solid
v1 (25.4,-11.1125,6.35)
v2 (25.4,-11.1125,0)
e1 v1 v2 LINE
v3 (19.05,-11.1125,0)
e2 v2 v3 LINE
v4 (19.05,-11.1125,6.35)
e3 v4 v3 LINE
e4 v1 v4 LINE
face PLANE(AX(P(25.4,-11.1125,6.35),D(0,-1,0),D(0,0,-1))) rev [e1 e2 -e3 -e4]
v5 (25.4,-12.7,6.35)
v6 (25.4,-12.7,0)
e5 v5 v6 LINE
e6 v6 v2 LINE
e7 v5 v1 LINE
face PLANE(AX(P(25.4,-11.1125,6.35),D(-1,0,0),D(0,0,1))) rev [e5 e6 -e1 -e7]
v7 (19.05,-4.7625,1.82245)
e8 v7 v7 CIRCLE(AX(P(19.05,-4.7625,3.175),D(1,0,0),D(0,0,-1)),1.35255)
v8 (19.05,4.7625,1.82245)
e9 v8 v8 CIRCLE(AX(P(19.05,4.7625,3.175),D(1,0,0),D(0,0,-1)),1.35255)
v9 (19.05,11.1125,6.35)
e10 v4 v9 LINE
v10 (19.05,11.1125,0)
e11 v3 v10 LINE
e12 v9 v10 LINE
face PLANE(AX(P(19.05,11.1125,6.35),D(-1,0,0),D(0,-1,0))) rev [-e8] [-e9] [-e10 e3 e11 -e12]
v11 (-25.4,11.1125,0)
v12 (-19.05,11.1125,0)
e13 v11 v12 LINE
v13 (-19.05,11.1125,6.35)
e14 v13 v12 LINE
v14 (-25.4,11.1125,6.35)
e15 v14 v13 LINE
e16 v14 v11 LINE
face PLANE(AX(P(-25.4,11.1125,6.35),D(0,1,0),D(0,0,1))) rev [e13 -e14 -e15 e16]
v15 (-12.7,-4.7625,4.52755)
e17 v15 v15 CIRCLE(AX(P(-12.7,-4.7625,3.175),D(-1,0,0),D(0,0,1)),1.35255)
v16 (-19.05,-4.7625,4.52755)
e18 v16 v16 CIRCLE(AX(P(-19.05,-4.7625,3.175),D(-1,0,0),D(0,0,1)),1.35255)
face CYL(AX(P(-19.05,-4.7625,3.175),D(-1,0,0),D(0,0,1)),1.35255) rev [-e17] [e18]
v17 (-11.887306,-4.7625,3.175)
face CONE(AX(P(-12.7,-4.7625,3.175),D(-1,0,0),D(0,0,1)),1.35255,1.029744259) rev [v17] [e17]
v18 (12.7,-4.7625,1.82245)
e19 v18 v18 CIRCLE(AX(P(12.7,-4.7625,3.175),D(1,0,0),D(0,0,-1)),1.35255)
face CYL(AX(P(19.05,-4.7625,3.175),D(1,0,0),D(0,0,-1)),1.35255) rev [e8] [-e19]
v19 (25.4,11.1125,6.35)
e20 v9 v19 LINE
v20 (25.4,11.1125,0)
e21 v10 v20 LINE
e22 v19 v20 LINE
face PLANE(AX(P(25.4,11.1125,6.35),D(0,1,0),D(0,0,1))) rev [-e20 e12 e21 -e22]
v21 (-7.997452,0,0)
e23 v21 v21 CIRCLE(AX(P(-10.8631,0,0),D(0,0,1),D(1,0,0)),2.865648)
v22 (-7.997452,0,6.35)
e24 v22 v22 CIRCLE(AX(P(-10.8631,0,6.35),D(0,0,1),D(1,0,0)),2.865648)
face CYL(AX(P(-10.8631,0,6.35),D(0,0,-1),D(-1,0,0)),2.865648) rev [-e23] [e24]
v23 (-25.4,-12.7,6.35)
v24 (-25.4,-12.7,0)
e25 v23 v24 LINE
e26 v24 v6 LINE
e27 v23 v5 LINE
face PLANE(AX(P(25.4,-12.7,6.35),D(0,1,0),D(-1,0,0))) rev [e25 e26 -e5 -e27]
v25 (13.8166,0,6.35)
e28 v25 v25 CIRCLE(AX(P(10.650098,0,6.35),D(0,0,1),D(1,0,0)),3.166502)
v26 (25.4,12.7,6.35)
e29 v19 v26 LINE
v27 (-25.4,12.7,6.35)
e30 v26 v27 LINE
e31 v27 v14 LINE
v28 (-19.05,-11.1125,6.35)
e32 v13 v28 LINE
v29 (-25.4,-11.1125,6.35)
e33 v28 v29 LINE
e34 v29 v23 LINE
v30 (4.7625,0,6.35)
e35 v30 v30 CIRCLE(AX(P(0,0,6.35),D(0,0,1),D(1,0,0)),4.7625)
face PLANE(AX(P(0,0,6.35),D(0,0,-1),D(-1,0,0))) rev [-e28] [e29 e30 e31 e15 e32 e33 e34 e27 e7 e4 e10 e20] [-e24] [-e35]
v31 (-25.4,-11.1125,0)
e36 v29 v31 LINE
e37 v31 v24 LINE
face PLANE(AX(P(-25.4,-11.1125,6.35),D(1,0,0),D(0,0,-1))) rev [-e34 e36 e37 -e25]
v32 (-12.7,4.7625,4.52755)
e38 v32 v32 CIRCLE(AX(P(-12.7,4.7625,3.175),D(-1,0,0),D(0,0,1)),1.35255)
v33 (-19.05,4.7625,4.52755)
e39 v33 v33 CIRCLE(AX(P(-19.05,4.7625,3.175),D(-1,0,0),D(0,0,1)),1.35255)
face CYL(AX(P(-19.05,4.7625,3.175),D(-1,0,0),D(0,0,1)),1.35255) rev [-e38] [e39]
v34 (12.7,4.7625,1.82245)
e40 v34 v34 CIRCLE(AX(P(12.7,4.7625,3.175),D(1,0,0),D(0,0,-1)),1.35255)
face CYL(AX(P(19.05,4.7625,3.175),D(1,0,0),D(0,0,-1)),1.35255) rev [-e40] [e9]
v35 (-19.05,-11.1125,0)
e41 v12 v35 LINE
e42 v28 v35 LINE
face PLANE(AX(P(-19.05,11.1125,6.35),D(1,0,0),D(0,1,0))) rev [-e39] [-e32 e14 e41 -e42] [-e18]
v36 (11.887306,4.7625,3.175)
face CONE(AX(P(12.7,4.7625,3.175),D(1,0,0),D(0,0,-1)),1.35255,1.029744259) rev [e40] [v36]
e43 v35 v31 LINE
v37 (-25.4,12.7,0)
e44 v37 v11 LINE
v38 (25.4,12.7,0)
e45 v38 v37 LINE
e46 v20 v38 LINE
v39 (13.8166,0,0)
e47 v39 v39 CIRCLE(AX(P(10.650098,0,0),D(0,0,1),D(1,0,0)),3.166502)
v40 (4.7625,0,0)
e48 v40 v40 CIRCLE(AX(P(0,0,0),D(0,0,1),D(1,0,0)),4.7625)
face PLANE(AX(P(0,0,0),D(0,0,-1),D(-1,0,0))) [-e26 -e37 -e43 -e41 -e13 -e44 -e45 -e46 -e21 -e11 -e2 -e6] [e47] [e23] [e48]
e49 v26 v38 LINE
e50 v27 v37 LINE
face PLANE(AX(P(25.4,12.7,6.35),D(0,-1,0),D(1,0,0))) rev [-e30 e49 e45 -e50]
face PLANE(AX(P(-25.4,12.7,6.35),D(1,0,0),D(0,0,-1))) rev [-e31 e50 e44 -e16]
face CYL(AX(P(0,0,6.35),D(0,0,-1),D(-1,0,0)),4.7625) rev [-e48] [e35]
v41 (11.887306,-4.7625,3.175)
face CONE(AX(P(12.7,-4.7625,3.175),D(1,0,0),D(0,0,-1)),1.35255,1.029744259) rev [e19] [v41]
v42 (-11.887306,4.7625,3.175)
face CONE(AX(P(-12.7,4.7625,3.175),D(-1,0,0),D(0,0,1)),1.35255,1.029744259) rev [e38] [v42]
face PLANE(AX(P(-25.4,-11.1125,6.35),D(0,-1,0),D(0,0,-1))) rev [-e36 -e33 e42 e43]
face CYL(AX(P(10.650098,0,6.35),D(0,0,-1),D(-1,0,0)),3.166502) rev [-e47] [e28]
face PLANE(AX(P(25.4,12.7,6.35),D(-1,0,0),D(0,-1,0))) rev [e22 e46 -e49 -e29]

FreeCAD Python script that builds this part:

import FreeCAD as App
import Part
import Sketcher
from FreeCAD import Vector
Q = App.Units.Quantity

doc = App.newDocument("Part")
body = doc.addObject("PartDesign::Body", "Body")

# Sketch on XY plane
sketch1 = body.newObject("Sketcher::SketchObject", "Sketch")
sketch1.AttachmentSupport = (doc.getObject("XY_Plane"), [""])
sketch1.MapMode = "FlatFace"
sketch1.addGeometry([
    Part.LineSegment(Vector(25.4, -12.7, 0), Vector(25.4, -11.1, 0)),  # 0
    Part.LineSegment(Vector(25.4, -11.1, 0), Vector(19.1, -11.1, 0)),  # 1
    Part.LineSegment(Vector(19.1, -11.1, 0), Vector(19.1, 11.1, 0)),  # 2
    Part.LineSegment(Vector(19.1, 11.1, 0), Vector(25.4, 11.1, 0)),  # 3
    Part.LineSegment(Vector(25.4, 11.1, 0), Vector(25.4, 12.7, 0)),  # 4
    Part.LineSegment(Vector(25.4, 12.7, 0), Vector(-25.4, 12.7, 0)),  # 5
    Part.LineSegment(Vector(-25.4, 12.7, 0), Vector(-25.4, 11.1, 0)),  # 6
    Part.LineSegment(Vector(-25.4, 11.1, 0), Vector(-19.1, 11.1, 0)),  # 7
    Part.LineSegment(Vector(-19.1, 11.1, 0), Vector(-19.1, -11.1, 0)),  # 8
    Part.LineSegment(Vector(-19.1, -11.1, 0), Vector(-25.4, -11.1, 0)),  # 9
    Part.LineSegment(Vector(-25.4, -11.1, 0), Vector(-25.4, -12.7, 0)),  # 10
    Part.LineSegment(Vector(-25.4, -12.7, 0), Vector(25.4, -12.7, 0)),  # 11
    Part.Circle(Vector(10.7, 0, 0), Vector(0, 0, 1), 3.2),  # 12
    Part.Circle(Vector(-10.9, 0, 0), Vector(0, 0, 1), 2.9),  # 13
    Part.Circle(Vector(0, 0, 0), Vector(0, 0, 1), 4.8),  # 14
], False)
sketch1.addConstraint([
    Sketcher.Constraint("Coincident", 0, 2, 1, 1),
    Sketcher.Constraint("Coincident", 1, 2, 2, 1),
    Sketcher.Constraint("Coincident", 2, 2, 3, 1),
    Sketcher.Constraint("Coincident", 3, 2, 4, 1),
    Sketcher.Constraint("Coincident", 4, 2, 5, 1),
    Sketcher.Constraint("Coincident", 5, 2, 6, 1),
    Sketcher.Constraint("Coincident", 6, 2, 7, 1),
    Sketcher.Constraint("Coincident", 7, 2, 8, 1),
    Sketcher.Constraint("Coincident", 8, 2, 9, 1),
    Sketcher.Constraint("Coincident", 9, 2, 10, 1),
    Sketcher.Constraint("Coincident", 10, 2, 11, 1),
    Sketcher.Constraint("Coincident", 11, 2, 0, 1),
    Sketcher.Constraint("Vertical", 0),
    Sketcher.Constraint("Horizontal", 1),
    Sketcher.Constraint("Vertical", 2),
    Sketcher.Constraint("Horizontal", 3),
    Sketcher.Constraint("Vertical", 4),
    Sketcher.Constraint("Horizontal", 5),
    Sketcher.Constraint("Vertical", 6),
    Sketcher.Constraint("Horizontal", 7),
    Sketcher.Constraint("Vertical", 8),
    Sketcher.Constraint("Horizontal", 9),
    Sketcher.Constraint("Vertical", 10),
    Sketcher.Constraint("Horizontal", 11),
    Sketcher.Constraint("Coincident", 14, 3, -1, 1),
    Sketcher.Constraint("Symmetric", 0, 2, 6, 2, -1, 1),
    Sketcher.Constraint("Symmetric", 2, 2, 8, 2, -1, 1),
    Sketcher.Constraint("Symmetric", 4, 2, 10, 2, -1, 1),
    Sketcher.Constraint("Symmetric", 3, 2, 6, 2, -2),
    Sketcher.Constraint("PointOnObject", 12, 3, -1),
    Sketcher.Constraint("PointOnObject", 13, 3, -1),
    Sketcher.Constraint("DistanceX", 5, 2, 5, 1, Q("2 in")),
    Sketcher.Constraint("Diameter", 14, Q("0.375 in")),
    Sketcher.Constraint("DistanceX", 1, 2, 1, 1, Q("0.25 in")),
    Sketcher.Constraint("DistanceY", -1, 1, 4, 2, Q("0.5 in")),
    Sketcher.Constraint("DistanceY", 0, 1, 0, 2, Q("0.0625 in")),
    Sketcher.Constraint("Diameter", 12, 6.333004),
    Sketcher.Constraint("Diameter", 13, 5.731297),
    Sketcher.Constraint("DistanceX", -1, 1, 12, 3, 10.650098),
    Sketcher.Constraint("DistanceX", 13, 3, -1, 1, 10.8631),
])
pad1 = body.newObject("PartDesign::Pad", "Pad")
pad1.Profile = sketch1
pad1.Length = Q("0.25 in")

# Sketch on XZ plane
sketch2 = body.newObject("Sketcher::SketchObject", "Sketch001")
sketch2.AttachmentSupport = (doc.getObject("XZ_Plane"), [""])
sketch2.MapMode = "FlatFace"
sketch2.AttachmentOffset = App.Placement(Vector(0, 0, -0.1875 * 25.4), App.Rotation())
sketch2.addGeometry([
    Part.LineSegment(Vector(11.9, 3.2, 0), Vector(19.1, 3.2, 0)),
    Part.LineSegment(Vector(19.1, 3.2, 0), Vector(19.1, 1.8, 0)),
    Part.LineSegment(Vector(19.1, 1.8, 0), Vector(12.7, 1.8, 0)),
    Part.LineSegment(Vector(12.7, 1.8, 0), Vector(11.9, 3.2, 0)),
], False)
sketch2.addGeometry(Part.LineSegment(Vector(19.1, 3.2, 0), Vector(11.9, 3.2, 0)), True)  # axis
sketch2.addConstraint([
    Sketcher.Constraint("Coincident", 0, 2, 1, 1),
    Sketcher.Constraint("Coincident", 1, 2, 2, 1),
    Sketcher.Constraint("Coincident", 2, 2, 3, 1),
    Sketcher.Constraint("Coincident", 3, 2, 0, 1),
    Sketcher.Constraint("Horizontal", 0),
    Sketcher.Constraint("Vertical", 1),
    Sketcher.Constraint("Horizontal", 2),
    Sketcher.Constraint("Horizontal", 4),
    Sketcher.Constraint("Coincident", 4, 1, 0, 2),
    Sketcher.Constraint("Equal", 0, 4),
    Sketcher.Constraint("Angle", 3, Q("121 deg")),
    Sketcher.Constraint("DistanceX", 2, 2, 2, 1, Q("0.25 in")),
    Sketcher.Constraint("DistanceX", -1, 1, 2, 2, Q("0.5 in")),
    Sketcher.Constraint("DistanceY", -1, 1, 0, 2, Q("0.125 in")),
    Sketcher.Constraint("DistanceY", 1, 2, 1, 1, 1.35255),
])
groove = body.newObject("PartDesign::Groove", "Groove")
groove.Profile = sketch2
groove.ReferenceAxis = (sketch2, ["Axis0"])
groove.Angle = 360
doc.recompute()

linearpattern = body.newObject("PartDesign::LinearPattern", "LinearPattern")
linearpattern.Originals = [groove]
linearpattern.Direction = (doc.getObject("Y_Axis"), [""])
linearpattern.Mode = "offset"
linearpattern.Offset = Q("0.375 in")
linearpattern.Occurrences = 2
linearpattern.Reversed = True
body.Tip = linearpattern
doc.recompute()

mirrored = body.newObject("PartDesign::Mirrored", "Mirrored")
mirrored.Originals = [groove]
mirrored.MirrorPlane = (doc.getObject("YZ_Plane"), [""])
body.Tip = mirrored

# Sketch on XZ plane
sketch3 = body.newObject("Sketcher::SketchObject", "Sketch002")
sketch3.AttachmentSupport = (doc.getObject("XZ_Plane"), [""])
sketch3.MapMode = "FlatFace"
sketch3.AttachmentOffset = App.Placement(Vector(0, 0, 0.1875 * 25.4), App.Rotation())
sketch3.addGeometry([
    Part.LineSegment(Vector(-19.1, 3.2, 0), Vector(-11.9, 3.2, 0)),
    Part.LineSegment(Vector(-11.9, 3.2, 0), Vector(-12.7, 1.8, 0)),
    Part.LineSegment(Vector(-12.7, 1.8, 0), Vector(-19.1, 1.8, 0)),
    Part.LineSegment(Vector(-19.1, 1.8, 0), Vector(-19.1, 3.2, 0)),
], False)
sketch3.addGeometry(Part.LineSegment(Vector(-11.9, 3.2, 0), Vector(-19.1, 3.2, 0)), True)  # axis
sketch3.addConstraint([
    Sketcher.Constraint("Coincident", 0, 2, 1, 1),
    Sketcher.Constraint("Coincident", 1, 2, 2, 1),
    Sketcher.Constraint("Coincident", 2, 2, 3, 1),
    Sketcher.Constraint("Coincident", 3, 2, 0, 1),
    Sketcher.Constraint("Horizontal", 0),
    Sketcher.Constraint("Horizontal", 2),
    Sketcher.Constraint("Vertical", 3),
    Sketcher.Constraint("Horizontal", 4),
    Sketcher.Constraint("Coincident", 4, 1, 0, 2),
    Sketcher.Constraint("Vertical", 2, 2, 4, 2),
    Sketcher.Constraint("Angle", 1, Q("-121 deg")),
    Sketcher.Constraint("DistanceX", 2, 2, 2, 1, Q("0.25 in")),
    Sketcher.Constraint("DistanceX", 1, 2, -1, 1, Q("0.5 in")),
    Sketcher.Constraint("DistanceY", -1, 1, 0, 2, Q("0.125 in")),
    Sketcher.Constraint("DistanceY", 3, 1, 3, 2, 1.35255),
])
groove2 = body.newObject("PartDesign::Groove", "Groove001")
groove2.Profile = sketch3
groove2.ReferenceAxis = (sketch3, ["Axis0"])
groove2.Angle = 360

doc.recompute()
